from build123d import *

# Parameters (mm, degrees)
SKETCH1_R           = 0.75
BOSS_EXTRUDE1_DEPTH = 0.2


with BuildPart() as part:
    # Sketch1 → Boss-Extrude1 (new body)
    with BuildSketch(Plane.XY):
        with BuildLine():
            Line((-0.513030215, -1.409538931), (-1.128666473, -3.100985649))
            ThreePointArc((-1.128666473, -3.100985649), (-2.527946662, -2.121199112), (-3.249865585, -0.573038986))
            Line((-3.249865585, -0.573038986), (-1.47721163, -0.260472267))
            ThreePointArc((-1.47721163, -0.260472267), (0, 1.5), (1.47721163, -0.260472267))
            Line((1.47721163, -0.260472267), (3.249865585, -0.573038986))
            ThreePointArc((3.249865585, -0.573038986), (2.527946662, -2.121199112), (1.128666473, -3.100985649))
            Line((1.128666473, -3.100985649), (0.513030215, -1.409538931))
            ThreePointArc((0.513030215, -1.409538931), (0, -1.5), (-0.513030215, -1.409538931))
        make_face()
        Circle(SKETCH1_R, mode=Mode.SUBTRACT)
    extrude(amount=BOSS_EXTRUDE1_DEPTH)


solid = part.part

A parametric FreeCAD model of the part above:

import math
import FreeCAD as App
import Part
import Sketcher
Q = App.Units.Quantity

doc = App.newDocument("Part")
params = doc.addObject("Spreadsheet::Sheet", "Params")
for row, (alias, value) in enumerate([
    ("sketch1_diameter", "1.5 mm"),
    ("sketch1_radius", "1.5 mm"),
    ("sketch1_radius2", "3.3 mm"),
    ("pad1_length", "0.2 mm"),
], start=1):
    params.set(f"A{row}", alias)
    params.set(f"B{row}", "=" + value)
    params.setAlias(f"B{row}", alias)

body = doc.addObject("PartDesign::Body", "Body")

# Sketch on XY plane
sketch1 = body.newObject("Sketcher::SketchObject", "Sketch")
sketch1.AttachmentSupport = (doc.getObject("XY_Plane"), [""])
sketch1.MapMode = "FlatFace"
sketch1.addGeometry([
    Part.LineSegment(App.Vector(-1.1, -3.1, 0), App.Vector(-0.5, -1.4, 0)),  # 0
    Part.ArcOfCircle(Part.Circle(App.Vector(0, 0, 0), App.Vector(0, 0, 1), 1.5), math.radians(-110), math.radians(-70)),  # 1
    Part.LineSegment(App.Vector(0.5, -1.4, 0), App.Vector(1.1, -3.1, 0)),  # 2
    Part.ArcOfCircle(Part.Circle(App.Vector(0, 0, 0), App.Vector(0, 0, 1), 3.3), math.radians(-70), math.radians(-10)),  # 3
    Part.LineSegment(App.Vector(3.2, -0.6, 0), App.Vector(1.5, -0.3, 0)),  # 4
    Part.ArcOfCircle(Part.Circle(App.Vector(0, 0, 0), App.Vector(0, 0, 1), 1.5), math.radians(-10), math.radians(190)),  # 5
    Part.LineSegment(App.Vector(-1.5, -0.3, 0), App.Vector(-3.2, -0.6, 0)),  # 6
    Part.ArcOfCircle(Part.Circle(App.Vector(0, 0, 0), App.Vector(0, 0, 1), 3.3), math.radians(-170), math.radians(-110)),  # 7
    Part.Circle(App.Vector(0, 0, 0), App.Vector(0, 0, 1), 0.8),  # 8
], False)
sketch1.addConstraint([
    Sketcher.Constraint("Coincident", 0, 2, 1, 1),
    Sketcher.Constraint("Coincident", 1, 2, 2, 1),
    Sketcher.Constraint("Coincident", 2, 2, 3, 1),
    Sketcher.Constraint("Coincident", 3, 2, 4, 1),
    Sketcher.Constraint("Coincident", 4, 2, 5, 1),
    Sketcher.Constraint("Coincident", 5, 2, 6, 1),
    Sketcher.Constraint("Coincident", 6, 2, 7, 1),
    Sketcher.Constraint("Coincident", 7, 2, 0, 1),
    Sketcher.Constraint("Coincident", 1, 3, -1, 1),
    Sketcher.Constraint("Coincident", 3, 3, -1, 1),
    Sketcher.Constraint("Coincident", 5, 3, -1, 1),
    Sketcher.Constraint("Coincident", 7, 3, -1, 1),
    Sketcher.Constraint("Coincident", 8, 3, -1, 1),
    Sketcher.Constraint("Equal", 1, 5),
    Sketcher.Constraint("Equal", 3, 7),
    Sketcher.Constraint("Horizontal", 0, 2, 1, 2),
    Sketcher.Constraint("Horizontal", 4, 2, 5, 2),
    Sketcher.Constraint("Horizontal", 3, 2, 6, 2),
    Sketcher.Constraint("Horizontal", 2, 2, 7, 2),
    Sketcher.Constraint("Diameter", 8, 1.5),
    Sketcher.Constraint("Radius", 1, 1.5),
    Sketcher.Constraint("Radius", 3, 3.3),
    Sketcher.Constraint("Angle", 0, Q("70 deg")),
    Sketcher.Constraint("Angle", 4, Q("170 deg")),
    Sketcher.Constraint("DistanceY", 1, 2, 3, 2, 0.8365),
    Sketcher.Constraint("DistanceX", 0, 2, -1, 1, 0.51303),
])
sketch1.setExpression("Constraints[19]", "Params.sketch1_diameter")
sketch1.setExpression("Constraints[20]", "Params.sketch1_radius")
sketch1.setExpression("Constraints[21]", "Params.sketch1_radius2")
pad1 = body.newObject("PartDesign::Pad", "Pad")
pad1.Profile = sketch1
pad1.setExpression("Length", "Params.pad1_length")

doc.recompute()
